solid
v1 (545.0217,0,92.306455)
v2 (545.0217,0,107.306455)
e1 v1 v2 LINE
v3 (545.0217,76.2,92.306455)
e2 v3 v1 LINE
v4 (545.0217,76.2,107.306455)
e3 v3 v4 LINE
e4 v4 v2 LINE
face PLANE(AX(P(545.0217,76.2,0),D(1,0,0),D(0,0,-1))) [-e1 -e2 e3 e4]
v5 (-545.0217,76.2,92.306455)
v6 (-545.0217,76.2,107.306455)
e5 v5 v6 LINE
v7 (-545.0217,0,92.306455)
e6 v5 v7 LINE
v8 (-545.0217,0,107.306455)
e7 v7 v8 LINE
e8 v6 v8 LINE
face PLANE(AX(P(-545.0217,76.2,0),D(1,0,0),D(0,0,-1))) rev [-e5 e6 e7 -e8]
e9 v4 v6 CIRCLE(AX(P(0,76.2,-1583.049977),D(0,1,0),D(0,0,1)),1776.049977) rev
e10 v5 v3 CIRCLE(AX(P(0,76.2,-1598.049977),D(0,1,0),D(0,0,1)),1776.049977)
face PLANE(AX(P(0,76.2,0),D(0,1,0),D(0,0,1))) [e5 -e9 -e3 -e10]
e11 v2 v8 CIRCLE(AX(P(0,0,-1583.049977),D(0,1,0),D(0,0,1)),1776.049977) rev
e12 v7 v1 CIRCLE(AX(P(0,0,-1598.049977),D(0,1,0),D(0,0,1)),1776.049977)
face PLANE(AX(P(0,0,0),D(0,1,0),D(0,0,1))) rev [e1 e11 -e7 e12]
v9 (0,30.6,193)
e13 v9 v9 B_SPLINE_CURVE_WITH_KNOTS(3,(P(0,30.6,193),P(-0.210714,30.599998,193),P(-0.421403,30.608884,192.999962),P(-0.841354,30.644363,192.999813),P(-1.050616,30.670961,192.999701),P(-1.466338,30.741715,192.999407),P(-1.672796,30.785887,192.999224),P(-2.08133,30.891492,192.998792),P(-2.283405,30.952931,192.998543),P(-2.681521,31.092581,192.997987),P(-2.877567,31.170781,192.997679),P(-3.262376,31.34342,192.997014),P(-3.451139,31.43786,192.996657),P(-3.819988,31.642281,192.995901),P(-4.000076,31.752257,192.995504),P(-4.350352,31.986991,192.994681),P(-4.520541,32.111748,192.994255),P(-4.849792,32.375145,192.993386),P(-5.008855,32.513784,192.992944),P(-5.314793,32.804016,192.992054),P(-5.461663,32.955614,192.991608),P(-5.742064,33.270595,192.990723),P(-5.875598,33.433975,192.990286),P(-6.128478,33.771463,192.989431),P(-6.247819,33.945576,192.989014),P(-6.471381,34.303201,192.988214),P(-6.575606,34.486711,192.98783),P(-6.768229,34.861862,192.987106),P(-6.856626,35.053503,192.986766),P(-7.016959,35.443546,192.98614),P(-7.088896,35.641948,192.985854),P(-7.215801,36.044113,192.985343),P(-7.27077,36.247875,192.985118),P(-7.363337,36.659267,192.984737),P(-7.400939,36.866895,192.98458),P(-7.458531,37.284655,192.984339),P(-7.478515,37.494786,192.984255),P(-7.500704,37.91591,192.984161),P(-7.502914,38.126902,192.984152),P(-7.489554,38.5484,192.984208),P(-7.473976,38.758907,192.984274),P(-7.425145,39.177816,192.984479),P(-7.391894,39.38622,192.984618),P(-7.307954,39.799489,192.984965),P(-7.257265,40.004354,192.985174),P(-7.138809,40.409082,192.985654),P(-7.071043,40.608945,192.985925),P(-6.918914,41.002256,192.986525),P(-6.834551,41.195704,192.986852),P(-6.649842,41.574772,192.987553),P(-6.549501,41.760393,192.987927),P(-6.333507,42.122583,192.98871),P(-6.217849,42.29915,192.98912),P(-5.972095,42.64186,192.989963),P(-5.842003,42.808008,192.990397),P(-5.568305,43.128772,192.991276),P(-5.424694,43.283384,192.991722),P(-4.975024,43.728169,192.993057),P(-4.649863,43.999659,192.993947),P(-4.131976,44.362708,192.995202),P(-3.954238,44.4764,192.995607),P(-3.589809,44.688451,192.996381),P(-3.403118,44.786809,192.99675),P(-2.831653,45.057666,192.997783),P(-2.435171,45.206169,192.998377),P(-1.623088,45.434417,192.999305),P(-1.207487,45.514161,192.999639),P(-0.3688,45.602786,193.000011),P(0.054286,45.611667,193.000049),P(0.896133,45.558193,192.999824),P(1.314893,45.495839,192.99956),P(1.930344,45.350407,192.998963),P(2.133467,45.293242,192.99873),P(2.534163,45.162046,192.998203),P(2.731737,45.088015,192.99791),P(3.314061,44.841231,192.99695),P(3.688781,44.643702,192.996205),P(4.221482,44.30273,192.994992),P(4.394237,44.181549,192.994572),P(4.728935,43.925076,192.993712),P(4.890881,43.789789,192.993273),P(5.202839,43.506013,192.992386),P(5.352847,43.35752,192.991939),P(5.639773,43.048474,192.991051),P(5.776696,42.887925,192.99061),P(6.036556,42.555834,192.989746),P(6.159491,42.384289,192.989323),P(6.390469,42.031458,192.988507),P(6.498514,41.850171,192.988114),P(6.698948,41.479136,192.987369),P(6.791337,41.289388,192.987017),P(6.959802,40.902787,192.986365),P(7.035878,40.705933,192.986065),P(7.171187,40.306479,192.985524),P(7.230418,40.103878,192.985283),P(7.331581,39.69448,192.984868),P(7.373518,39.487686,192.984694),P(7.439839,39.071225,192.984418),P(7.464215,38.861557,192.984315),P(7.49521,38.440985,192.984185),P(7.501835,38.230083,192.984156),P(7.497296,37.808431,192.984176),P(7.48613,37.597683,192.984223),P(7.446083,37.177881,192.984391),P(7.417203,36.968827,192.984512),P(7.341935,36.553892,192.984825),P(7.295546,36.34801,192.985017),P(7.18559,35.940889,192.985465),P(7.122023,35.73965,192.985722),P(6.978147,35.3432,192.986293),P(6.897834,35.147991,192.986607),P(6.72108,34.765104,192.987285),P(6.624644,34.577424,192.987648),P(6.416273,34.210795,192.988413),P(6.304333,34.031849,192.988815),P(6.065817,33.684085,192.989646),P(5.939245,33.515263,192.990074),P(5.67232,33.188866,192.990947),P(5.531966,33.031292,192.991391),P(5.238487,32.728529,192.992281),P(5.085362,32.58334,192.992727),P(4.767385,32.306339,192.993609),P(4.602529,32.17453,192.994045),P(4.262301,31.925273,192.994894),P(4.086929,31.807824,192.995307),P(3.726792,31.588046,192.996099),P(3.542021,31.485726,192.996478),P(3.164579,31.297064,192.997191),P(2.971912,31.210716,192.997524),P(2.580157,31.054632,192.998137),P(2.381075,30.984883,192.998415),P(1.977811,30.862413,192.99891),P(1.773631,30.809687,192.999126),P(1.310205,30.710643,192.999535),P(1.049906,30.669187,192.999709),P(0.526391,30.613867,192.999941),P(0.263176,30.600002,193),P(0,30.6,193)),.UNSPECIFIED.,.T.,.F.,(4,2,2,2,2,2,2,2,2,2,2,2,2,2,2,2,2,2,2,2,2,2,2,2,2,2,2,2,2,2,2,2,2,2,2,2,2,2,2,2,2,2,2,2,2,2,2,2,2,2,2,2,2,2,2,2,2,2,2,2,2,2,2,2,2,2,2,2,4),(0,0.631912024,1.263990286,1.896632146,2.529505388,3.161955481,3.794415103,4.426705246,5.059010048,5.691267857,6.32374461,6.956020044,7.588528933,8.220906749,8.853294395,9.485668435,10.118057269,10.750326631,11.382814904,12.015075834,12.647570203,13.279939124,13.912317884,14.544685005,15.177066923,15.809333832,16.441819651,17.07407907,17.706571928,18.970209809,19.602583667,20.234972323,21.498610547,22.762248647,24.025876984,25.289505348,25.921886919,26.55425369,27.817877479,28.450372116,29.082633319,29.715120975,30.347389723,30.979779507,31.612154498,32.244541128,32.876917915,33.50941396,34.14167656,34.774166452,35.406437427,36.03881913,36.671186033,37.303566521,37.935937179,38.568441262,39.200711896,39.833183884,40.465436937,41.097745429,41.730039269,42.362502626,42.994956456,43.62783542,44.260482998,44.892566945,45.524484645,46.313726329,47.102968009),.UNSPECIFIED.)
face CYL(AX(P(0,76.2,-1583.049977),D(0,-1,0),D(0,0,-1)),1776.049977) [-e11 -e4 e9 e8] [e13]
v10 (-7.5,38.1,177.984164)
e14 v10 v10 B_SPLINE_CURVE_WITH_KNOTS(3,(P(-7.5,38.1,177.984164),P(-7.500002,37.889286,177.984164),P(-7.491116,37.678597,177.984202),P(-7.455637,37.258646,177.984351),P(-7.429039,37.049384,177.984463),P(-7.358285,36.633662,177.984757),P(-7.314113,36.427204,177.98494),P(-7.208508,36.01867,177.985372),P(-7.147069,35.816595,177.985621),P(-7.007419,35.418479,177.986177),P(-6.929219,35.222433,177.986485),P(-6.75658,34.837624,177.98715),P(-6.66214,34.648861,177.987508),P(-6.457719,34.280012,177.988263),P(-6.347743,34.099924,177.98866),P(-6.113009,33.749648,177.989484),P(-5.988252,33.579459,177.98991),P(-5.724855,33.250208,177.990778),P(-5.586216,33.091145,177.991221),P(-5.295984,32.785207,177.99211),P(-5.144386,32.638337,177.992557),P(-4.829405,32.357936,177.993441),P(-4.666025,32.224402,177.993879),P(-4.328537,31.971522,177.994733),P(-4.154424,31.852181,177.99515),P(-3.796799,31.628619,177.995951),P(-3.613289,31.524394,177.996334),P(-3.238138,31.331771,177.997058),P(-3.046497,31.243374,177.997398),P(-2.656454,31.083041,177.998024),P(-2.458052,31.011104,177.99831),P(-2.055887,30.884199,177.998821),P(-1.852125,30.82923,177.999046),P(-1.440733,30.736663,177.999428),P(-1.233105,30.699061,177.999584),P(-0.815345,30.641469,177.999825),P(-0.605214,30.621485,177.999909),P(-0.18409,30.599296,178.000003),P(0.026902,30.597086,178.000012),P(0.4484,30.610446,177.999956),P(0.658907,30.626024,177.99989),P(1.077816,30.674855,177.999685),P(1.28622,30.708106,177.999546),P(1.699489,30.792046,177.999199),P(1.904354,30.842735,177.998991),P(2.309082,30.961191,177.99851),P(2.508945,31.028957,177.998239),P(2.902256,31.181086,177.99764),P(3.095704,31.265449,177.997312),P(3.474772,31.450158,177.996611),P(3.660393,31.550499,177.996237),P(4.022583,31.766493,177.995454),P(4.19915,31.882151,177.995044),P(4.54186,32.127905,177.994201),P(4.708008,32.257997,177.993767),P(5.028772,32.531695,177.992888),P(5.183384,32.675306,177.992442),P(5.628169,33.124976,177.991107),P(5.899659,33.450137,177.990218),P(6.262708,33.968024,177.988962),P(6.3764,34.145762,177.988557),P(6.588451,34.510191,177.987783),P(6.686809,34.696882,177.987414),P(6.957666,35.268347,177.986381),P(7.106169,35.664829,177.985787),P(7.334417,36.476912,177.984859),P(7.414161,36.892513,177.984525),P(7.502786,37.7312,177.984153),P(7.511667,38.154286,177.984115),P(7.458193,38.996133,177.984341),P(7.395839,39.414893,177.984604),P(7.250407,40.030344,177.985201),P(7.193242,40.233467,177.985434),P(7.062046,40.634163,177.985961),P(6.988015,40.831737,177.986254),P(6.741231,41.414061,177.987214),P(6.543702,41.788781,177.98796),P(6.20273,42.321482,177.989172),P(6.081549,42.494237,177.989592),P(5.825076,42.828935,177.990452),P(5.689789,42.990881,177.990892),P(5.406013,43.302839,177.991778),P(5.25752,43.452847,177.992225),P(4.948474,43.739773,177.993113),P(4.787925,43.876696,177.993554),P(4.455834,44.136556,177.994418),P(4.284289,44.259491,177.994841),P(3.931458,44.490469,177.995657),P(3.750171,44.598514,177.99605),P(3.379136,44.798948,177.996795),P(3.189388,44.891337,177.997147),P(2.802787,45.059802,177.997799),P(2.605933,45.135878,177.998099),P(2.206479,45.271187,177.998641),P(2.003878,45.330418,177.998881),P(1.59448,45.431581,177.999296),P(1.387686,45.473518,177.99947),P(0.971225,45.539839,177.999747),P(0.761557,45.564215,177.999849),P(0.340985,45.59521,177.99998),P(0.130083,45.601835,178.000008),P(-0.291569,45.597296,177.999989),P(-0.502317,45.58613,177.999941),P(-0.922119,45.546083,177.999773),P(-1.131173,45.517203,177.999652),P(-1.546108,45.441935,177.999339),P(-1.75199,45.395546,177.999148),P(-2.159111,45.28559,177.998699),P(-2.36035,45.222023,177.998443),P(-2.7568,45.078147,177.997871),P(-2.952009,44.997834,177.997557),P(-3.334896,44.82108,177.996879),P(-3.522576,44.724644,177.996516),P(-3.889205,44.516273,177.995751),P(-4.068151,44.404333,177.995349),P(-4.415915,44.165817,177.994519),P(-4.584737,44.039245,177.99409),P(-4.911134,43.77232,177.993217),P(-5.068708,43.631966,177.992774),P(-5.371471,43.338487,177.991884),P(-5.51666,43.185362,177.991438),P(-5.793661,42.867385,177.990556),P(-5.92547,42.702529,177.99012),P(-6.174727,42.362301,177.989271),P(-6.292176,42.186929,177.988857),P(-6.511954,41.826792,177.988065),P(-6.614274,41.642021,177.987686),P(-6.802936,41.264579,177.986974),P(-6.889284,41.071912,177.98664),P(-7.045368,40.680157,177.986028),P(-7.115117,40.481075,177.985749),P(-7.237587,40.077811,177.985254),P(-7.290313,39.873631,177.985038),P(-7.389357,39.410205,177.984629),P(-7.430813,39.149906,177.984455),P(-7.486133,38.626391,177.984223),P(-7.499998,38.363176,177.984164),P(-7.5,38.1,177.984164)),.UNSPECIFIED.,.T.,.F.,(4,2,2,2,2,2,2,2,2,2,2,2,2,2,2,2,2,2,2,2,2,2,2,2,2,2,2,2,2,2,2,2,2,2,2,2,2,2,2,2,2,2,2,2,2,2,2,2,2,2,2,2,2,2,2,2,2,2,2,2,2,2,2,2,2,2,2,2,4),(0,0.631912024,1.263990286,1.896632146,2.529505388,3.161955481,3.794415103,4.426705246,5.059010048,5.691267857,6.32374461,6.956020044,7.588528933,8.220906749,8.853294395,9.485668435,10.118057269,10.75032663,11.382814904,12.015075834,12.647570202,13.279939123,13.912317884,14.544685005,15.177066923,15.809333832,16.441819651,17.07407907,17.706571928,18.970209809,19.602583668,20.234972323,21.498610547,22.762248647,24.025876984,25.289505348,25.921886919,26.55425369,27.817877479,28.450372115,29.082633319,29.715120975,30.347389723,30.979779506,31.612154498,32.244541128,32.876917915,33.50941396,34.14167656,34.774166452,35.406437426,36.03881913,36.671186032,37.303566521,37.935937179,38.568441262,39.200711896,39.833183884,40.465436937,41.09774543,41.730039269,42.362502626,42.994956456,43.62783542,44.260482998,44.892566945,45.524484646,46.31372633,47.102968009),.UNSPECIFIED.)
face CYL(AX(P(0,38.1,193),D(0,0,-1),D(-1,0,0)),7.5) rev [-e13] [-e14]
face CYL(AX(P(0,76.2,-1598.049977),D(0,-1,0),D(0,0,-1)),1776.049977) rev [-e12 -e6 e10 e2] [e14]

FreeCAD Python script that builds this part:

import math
import FreeCAD as App
import Part
import Sketcher
from FreeCAD import Vector

doc = App.newDocument("Part")
body = doc.addObject("PartDesign::Body", "Body")

# Sketch on XZ plane
sketch1 = body.newObject("Sketcher::SketchObject", "Sketch")
sketch1.AttachmentSupport = (doc.getObject("XZ_Plane"), [""])
sketch1.MapMode = "FlatFace"
sketch1.addGeometry(Part.ArcOfCircle(Part.Circle(Vector(0, -1598, 0), Vector(0, 0, 1), 1776), math.radians(72), math.radians(108)), False)
sketch1.addGeometry(Part.LineSegment(Vector(-545, 92, 0), Vector(-545, 107, 0)), False)
sketch1.addGeometry(Part.ArcOfCircle(Part.Circle(Vector(0, -1583, 0), Vector(0, 0, 1), 1776), math.radians(72), math.radians(108)), False)
sketch1.addGeometry(Part.LineSegment(Vector(545, 107, 0), Vector(545, 92, 0)), False)
sketch1.addConstraint(Sketcher.Constraint("Coincident", 0, 2, 1, 1))
sketch1.addConstraint(Sketcher.Constraint("Coincident", 1, 2, 2, 2))
sketch1.addConstraint(Sketcher.Constraint("Coincident", 2, 1, 3, 1))
sketch1.addConstraint(Sketcher.Constraint("Coincident", 3, 2, 0, 1))
sketch1.addConstraint(Sketcher.Constraint("Vertical", 1))
sketch1.addConstraint(Sketcher.Constraint("Vertical", 3))
sketch1.addConstraint(Sketcher.Constraint("Equal", 0, 2))
sketch1.addConstraint(Sketcher.Constraint("PointOnObject", 0, 3, -2))
sketch1.addConstraint(Sketcher.Constraint("PointOnObject", 2, 3, -2))
sketch1.addConstraint(Sketcher.Constraint("DistanceY", 1, 1, 1, 2, 15.0))
sketch1.addConstraint(Sketcher.Constraint("DistanceY", 3, 2, 1, 2, 15.0))
sketch1.addConstraint(Sketcher.Constraint("Radius", 0, 1776.049977))
sketch1.addConstraint(Sketcher.Constraint("DistanceX", 1, 2, -1, 1, 545.0217))
sketch1.addConstraint(Sketcher.Constraint("DistanceY", 0, 3, -1, 1, 1598.049977))
pad1 = body.newObject("PartDesign::Pad", "Pad")
pad1.Profile = sketch1
pad1.Length = 76.2
pad1.Reversed = True

# Sketch on XY plane
sketch2 = body.newObject("Sketcher::SketchObject", "Sketch001")
sketch2.AttachmentSupport = (doc.getObject("XY_Plane"), [""])
sketch2.MapMode = "FlatFace"
sketch2.addGeometry(Part.Circle(Vector(0, 38, 0), Vector(0, 0, 1), 8), False)
sketch2.addConstraint(Sketcher.Constraint("PointOnObject", 0, 3, -2))
sketch2.addConstraint(Sketcher.Constraint("Diameter", 0, 15.0))
sketch2.addConstraint(Sketcher.Constraint("DistanceY", -1, 1, 0, 3, 38.1))
pocket1 = body.newObject("PartDesign::Pocket", "Pocket")
pocket1.Profile = sketch2
pocket1.Type = "ThroughAll"
pocket1.Reversed = True

doc.recompute()
